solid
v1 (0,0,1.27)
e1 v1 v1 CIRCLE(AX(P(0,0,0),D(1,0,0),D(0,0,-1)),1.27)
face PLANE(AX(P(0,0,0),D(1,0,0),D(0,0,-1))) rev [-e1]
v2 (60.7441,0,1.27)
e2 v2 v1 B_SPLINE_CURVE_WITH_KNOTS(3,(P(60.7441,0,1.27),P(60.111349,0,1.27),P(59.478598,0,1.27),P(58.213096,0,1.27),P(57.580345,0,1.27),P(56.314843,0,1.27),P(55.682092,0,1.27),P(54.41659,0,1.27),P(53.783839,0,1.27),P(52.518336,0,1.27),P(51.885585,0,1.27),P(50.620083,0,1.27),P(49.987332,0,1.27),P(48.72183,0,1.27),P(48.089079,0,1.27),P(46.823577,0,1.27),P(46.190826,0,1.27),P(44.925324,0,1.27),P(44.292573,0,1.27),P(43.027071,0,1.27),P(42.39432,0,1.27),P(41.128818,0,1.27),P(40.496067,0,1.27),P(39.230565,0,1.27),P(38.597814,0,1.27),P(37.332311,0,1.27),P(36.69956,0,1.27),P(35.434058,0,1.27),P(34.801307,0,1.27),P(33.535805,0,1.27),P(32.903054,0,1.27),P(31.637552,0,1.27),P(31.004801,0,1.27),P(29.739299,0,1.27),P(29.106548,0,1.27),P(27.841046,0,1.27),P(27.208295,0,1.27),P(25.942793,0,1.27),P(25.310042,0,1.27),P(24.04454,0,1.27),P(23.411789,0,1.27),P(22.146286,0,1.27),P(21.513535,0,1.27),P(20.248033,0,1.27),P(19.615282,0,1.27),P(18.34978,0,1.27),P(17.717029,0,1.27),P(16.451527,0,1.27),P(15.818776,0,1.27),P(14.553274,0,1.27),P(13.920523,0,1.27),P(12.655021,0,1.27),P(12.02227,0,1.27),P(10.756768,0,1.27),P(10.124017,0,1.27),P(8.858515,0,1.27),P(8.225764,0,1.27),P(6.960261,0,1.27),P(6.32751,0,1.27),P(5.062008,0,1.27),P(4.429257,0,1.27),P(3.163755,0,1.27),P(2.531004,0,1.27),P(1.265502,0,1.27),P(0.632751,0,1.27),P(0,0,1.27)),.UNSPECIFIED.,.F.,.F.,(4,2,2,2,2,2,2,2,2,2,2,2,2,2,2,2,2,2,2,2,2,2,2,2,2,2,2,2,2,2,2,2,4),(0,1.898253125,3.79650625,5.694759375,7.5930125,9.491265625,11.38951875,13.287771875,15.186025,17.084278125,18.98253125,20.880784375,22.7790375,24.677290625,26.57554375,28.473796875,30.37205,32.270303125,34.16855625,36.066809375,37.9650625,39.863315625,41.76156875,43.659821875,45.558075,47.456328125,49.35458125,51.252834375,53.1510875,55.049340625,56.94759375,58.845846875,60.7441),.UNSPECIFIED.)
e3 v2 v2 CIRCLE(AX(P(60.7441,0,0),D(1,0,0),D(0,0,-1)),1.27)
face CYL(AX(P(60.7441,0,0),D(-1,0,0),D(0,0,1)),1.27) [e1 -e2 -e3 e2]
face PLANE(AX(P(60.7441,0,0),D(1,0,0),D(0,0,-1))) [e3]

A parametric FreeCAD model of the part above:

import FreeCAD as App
import Part
import Sketcher

V = App.Vector
Q = App.Units.Quantity

doc = App.newDocument("Part")
body = doc.addObject("PartDesign::Body", "Body")

sketch1 = body.newObject("Sketcher::SketchObject", "Sketch")
sketch1.AttachmentSupport = (doc.getObject("YZ_Plane"), [""])
sketch1.MapMode = "FlatFace"
sketch1.addGeometry(Part.Circle(V(0, 0, 0), V(0, 0, 1), 1.3), False)
sketch1.addConstraint([
    Sketcher.Constraint("Coincident", 0, 3, -1, 1),
    Sketcher.Constraint("Diameter", 0, Q("0.1 in")),
])
pad1 = body.newObject("PartDesign::Pad", "Pad")
pad1.Profile = sketch1
pad1.Length = Q("2.3915 in")

doc.recompute()
